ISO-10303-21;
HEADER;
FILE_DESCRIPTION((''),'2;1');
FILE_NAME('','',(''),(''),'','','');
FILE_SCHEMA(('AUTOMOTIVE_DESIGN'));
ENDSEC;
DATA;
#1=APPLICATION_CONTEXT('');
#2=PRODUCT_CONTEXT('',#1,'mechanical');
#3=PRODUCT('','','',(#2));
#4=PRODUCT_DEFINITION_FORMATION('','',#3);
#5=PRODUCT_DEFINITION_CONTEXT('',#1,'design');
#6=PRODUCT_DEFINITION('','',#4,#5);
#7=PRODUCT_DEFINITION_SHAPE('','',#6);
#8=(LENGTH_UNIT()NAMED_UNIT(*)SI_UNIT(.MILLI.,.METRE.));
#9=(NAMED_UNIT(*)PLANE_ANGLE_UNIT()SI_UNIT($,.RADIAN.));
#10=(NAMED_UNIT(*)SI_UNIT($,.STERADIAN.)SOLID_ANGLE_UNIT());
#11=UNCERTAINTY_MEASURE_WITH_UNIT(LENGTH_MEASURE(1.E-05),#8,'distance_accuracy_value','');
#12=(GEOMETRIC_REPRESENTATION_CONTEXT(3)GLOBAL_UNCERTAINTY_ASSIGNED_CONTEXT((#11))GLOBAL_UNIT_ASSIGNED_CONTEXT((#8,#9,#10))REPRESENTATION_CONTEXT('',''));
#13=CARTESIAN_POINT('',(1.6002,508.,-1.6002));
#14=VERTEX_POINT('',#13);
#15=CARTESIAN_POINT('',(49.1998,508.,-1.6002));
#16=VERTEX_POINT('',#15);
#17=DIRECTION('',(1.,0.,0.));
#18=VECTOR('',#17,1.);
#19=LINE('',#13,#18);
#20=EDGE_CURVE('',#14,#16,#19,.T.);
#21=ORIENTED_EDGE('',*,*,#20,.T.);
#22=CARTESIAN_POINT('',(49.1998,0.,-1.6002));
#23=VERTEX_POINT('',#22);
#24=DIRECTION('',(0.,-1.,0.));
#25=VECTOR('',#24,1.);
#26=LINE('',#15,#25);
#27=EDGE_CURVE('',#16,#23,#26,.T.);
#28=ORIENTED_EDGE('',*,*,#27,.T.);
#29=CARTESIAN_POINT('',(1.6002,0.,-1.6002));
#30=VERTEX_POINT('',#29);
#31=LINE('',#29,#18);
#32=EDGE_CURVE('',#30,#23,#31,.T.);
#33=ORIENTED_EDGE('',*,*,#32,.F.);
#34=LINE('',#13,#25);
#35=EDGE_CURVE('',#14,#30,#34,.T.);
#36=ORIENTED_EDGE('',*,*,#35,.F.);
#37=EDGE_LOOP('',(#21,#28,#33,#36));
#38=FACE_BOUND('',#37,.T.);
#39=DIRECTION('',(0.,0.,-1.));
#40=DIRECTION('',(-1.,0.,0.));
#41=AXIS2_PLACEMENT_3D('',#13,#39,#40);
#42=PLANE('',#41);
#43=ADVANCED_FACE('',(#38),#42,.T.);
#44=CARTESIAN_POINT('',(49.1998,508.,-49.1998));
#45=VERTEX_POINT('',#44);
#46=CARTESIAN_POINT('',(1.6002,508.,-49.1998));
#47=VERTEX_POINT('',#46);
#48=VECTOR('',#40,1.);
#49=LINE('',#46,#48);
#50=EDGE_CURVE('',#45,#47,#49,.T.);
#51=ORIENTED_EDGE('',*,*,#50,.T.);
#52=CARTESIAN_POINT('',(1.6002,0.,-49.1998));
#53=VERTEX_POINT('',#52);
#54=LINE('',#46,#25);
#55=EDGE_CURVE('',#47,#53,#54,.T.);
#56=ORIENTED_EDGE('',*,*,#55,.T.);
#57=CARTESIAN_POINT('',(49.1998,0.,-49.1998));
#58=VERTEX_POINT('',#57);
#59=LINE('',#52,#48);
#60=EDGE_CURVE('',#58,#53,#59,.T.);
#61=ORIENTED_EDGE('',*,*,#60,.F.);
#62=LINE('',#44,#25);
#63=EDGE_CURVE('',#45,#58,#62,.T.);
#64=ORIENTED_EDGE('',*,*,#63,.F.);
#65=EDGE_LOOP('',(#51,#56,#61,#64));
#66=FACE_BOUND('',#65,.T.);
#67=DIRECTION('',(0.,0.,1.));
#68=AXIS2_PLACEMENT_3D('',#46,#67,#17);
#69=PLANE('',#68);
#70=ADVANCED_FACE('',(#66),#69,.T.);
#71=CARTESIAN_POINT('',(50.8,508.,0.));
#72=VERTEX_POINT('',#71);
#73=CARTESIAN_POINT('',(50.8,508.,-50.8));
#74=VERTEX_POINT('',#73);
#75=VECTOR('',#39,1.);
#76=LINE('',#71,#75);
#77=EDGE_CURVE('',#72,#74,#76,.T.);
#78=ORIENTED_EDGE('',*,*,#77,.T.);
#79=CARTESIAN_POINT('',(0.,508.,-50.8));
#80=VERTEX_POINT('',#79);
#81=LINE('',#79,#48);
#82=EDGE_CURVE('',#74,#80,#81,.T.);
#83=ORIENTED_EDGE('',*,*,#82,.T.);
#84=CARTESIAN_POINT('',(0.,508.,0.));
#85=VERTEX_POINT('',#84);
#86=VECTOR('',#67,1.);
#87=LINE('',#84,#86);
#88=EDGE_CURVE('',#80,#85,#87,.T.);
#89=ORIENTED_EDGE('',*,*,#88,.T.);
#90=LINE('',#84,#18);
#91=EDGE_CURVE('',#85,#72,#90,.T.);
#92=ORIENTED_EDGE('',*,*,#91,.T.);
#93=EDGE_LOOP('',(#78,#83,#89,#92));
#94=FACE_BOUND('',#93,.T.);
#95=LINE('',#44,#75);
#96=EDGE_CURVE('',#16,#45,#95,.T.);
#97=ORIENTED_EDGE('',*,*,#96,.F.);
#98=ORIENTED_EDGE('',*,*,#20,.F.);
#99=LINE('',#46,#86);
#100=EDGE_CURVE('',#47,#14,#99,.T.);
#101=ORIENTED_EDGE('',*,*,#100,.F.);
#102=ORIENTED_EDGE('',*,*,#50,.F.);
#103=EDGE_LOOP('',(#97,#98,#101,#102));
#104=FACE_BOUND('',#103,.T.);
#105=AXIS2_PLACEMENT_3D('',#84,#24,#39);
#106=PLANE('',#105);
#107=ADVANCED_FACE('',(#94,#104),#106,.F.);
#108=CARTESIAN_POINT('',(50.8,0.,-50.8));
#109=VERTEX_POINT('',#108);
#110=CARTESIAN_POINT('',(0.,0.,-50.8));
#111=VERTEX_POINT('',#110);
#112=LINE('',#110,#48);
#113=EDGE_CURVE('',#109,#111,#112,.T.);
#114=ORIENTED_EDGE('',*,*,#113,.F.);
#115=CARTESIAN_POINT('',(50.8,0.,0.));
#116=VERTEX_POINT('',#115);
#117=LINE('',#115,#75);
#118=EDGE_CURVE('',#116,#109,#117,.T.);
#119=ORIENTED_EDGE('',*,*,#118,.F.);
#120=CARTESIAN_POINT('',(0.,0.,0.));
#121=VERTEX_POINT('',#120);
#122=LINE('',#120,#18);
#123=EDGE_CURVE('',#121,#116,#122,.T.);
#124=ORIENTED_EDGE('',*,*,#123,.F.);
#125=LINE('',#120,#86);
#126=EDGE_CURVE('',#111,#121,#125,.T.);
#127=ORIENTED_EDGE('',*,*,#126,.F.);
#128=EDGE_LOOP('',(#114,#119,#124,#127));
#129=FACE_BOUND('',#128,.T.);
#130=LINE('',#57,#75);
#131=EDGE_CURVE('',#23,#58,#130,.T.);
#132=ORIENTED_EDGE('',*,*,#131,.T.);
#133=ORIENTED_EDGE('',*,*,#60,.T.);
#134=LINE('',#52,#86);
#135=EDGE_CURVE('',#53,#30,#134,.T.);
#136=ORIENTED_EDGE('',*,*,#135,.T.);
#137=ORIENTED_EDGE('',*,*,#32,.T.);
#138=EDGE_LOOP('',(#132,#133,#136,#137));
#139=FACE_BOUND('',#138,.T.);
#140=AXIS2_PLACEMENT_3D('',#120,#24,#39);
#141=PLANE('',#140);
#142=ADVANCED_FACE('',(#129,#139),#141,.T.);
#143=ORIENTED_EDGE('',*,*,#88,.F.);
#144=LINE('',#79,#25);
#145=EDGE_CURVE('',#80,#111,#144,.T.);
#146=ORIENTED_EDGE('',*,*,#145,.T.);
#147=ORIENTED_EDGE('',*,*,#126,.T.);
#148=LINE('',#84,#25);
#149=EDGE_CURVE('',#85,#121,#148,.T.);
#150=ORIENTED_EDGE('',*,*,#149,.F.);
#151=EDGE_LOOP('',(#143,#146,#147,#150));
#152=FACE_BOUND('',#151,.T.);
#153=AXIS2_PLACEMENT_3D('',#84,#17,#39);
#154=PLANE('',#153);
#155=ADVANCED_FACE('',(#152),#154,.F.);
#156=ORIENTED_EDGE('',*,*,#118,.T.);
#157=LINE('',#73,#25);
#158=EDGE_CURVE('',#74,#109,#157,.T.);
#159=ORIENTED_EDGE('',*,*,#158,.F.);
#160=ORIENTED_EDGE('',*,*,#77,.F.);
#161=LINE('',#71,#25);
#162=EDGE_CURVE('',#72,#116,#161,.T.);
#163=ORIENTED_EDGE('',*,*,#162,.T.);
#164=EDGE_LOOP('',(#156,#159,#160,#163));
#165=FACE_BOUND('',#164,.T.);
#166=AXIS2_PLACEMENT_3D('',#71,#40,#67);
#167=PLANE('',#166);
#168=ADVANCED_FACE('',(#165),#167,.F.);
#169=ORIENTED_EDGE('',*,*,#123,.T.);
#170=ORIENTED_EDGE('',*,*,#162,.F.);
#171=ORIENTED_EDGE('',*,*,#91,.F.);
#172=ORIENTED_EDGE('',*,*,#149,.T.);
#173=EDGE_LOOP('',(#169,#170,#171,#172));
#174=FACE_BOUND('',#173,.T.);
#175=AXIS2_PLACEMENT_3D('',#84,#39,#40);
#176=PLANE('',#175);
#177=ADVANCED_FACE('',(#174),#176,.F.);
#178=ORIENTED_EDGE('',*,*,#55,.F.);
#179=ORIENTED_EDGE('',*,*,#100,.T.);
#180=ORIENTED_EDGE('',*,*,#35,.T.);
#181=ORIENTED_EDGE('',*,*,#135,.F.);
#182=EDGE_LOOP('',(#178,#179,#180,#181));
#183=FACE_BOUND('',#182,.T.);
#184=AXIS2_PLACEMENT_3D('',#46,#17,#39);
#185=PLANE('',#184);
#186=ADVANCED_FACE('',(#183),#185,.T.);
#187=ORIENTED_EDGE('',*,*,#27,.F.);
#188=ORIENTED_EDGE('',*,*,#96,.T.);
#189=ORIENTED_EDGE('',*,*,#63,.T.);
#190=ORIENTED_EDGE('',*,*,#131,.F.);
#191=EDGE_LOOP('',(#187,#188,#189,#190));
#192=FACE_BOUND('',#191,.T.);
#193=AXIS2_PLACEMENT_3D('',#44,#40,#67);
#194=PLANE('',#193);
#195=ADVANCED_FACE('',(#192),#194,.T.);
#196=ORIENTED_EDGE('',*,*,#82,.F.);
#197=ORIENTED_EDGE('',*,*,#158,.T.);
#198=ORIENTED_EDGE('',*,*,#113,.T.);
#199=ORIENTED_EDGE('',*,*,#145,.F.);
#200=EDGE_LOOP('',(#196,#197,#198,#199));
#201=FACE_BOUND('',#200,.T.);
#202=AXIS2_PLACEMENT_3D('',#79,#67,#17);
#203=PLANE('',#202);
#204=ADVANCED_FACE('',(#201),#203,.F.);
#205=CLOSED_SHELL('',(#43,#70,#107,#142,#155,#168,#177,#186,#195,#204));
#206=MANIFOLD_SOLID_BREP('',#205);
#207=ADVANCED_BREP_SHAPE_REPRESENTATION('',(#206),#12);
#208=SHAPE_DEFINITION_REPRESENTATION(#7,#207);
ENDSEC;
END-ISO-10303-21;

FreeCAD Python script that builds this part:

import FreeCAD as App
import Part
import Sketcher
Q = App.Units.Quantity

doc = App.newDocument("Part")
body = doc.addObject("PartDesign::Body", "Body")

sketch1 = doc.addObject("Sketcher::SketchObject", "Sketch")
body.addObject(sketch1)
sketch1.AttachmentSupport = (doc.XZ_Plane, [""])
sketch1.MapMode = "FlatFace"
sketch1.addGeometry(Part.LineSegment(App.Vector(0, -50.8, 0), App.Vector(0, 0, 0)), False)
sketch1.addGeometry(Part.LineSegment(App.Vector(0, 0, 0), App.Vector(50.8, 0, 0)), False)
sketch1.addGeometry(Part.LineSegment(App.Vector(50.8, 0, 0), App.Vector(50.8, -50.8, 0)), False)
sketch1.addGeometry(Part.LineSegment(App.Vector(50.8, -50.8, 0), App.Vector(0, -50.8, 0)), False)
sketch1.addGeometry(Part.LineSegment(App.Vector(49.1998, -1.6002, 0), App.Vector(1.6002, -1.6002, 0)), False)
sketch1.addGeometry(Part.LineSegment(App.Vector(1.6002, -1.6002, 0), App.Vector(1.6002, -49.1998, 0)), False)
sketch1.addGeometry(Part.LineSegment(App.Vector(1.6002, -49.1998, 0), App.Vector(49.1998, -49.1998, 0)), False)
sketch1.addGeometry(Part.LineSegment(App.Vector(49.1998, -49.1998, 0), App.Vector(49.1998, -1.6002, 0)), False)
sketch1.addConstraint(Sketcher.Constraint("Coincident", 0, 2, 1, 1))
sketch1.addConstraint(Sketcher.Constraint("Coincident", 1, 2, 2, 1))
sketch1.addConstraint(Sketcher.Constraint("Coincident", 2, 2, 3, 1))
sketch1.addConstraint(Sketcher.Constraint("Coincident", 3, 2, 0, 1))
sketch1.addConstraint(Sketcher.Constraint("Coincident", 4, 2, 5, 1))
sketch1.addConstraint(Sketcher.Constraint("Coincident", 5, 2, 6, 1))
sketch1.addConstraint(Sketcher.Constraint("Coincident", 6, 2, 7, 1))
sketch1.addConstraint(Sketcher.Constraint("Coincident", 7, 2, 4, 1))
sketch1.addConstraint(Sketcher.Constraint("Vertical", 0))
sketch1.addConstraint(Sketcher.Constraint("Horizontal", 1))
sketch1.addConstraint(Sketcher.Constraint("Vertical", 2))
sketch1.addConstraint(Sketcher.Constraint("Horizontal", 3))
sketch1.addConstraint(Sketcher.Constraint("Horizontal", 4))
sketch1.addConstraint(Sketcher.Constraint("Vertical", 5))
sketch1.addConstraint(Sketcher.Constraint("Horizontal", 6))
sketch1.addConstraint(Sketcher.Constraint("Vertical", 7))
sketch1.addConstraint(Sketcher.Constraint("Coincident", 0, 2, -1, 1))
sketch1.addConstraint(Sketcher.Constraint("Equal", 3, 0))
sketch1.addConstraint(Sketcher.Constraint("Equal", 6, 5))
sketch1.addConstraint(Sketcher.Constraint("DistanceX", 1, 1, 1, 2, Q("2 in")))
sketch1.addConstraint(Sketcher.Constraint("DistanceX", 4, 2, 4, 1, Q("1.874 in")))
sketch1.addConstraint(Sketcher.Constraint("DistanceX", -1, 1, 4, 2, Q("0.063 in")))
sketch1.addConstraint(Sketcher.Constraint("DistanceY", 4, 2, -1, 1, Q("0.063 in")))
pad1 = doc.addObject("PartDesign::Pad", "Pad")
body.addObject(pad1)
pad1.Profile = sketch1
pad1.Length = Q("20 in")
pad1.Reversed = True

doc.recompute()
